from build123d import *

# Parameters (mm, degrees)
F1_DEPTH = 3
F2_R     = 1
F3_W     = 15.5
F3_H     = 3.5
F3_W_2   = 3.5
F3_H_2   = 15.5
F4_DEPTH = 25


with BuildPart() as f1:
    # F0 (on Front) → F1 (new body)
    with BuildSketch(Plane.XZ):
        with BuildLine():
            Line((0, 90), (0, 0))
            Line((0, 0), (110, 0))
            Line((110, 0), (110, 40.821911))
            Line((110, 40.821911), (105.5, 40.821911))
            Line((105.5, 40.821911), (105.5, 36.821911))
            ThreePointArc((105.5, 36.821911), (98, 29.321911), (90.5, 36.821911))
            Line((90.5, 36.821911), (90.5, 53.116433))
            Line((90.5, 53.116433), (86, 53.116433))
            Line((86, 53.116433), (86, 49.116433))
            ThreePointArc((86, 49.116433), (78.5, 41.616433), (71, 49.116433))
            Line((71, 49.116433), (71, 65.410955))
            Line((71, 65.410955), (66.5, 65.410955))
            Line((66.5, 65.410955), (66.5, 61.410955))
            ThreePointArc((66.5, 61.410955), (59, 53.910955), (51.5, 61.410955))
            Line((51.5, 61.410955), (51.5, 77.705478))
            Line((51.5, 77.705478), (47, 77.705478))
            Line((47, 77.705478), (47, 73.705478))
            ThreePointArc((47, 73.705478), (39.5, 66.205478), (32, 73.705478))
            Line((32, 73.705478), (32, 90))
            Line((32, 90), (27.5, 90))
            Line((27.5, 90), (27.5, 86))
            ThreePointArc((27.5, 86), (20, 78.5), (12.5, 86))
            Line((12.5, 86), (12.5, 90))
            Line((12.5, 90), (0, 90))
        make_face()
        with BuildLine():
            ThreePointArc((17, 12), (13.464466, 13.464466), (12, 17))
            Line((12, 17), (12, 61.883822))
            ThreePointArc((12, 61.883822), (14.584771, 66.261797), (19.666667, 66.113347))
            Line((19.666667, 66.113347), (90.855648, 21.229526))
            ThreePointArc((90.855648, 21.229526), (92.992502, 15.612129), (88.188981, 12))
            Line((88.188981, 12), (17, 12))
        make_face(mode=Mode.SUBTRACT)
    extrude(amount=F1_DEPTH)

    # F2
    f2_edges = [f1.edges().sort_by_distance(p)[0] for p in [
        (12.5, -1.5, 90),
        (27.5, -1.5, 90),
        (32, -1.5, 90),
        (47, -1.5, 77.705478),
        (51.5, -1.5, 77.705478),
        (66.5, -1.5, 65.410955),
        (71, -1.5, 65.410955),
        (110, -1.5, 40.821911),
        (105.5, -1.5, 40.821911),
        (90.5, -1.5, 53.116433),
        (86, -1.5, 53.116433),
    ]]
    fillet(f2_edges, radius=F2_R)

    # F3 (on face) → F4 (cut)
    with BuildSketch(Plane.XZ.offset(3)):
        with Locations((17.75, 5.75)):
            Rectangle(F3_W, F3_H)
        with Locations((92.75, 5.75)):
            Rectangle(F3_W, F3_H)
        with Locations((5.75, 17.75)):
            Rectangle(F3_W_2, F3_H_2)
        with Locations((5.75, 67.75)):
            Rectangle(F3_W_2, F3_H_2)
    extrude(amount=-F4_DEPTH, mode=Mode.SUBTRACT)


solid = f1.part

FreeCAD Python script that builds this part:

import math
import FreeCAD as App
import Part
import Sketcher
Q = App.Units.Quantity


def edges_at(feature, points):
    """Names of the edges that pass closest to the given points."""
    edges = feature.Shape.Edges
    near = lambda p: min(range(len(edges)), key=lambda i: edges[i].distToShape(Part.Vertex(*p))[0])
    return sorted({f"Edge{near(p) + 1}" for p in points})


def add_polygon(sketch, points):
    """Adds a closed chain of lines whose ends are joined by coincident constraints."""
    first, n = sketch.GeometryCount, len(points)
    for a, b in zip(points, points[1:] + points[:1]):
        sketch.addGeometry(Part.LineSegment(App.Vector(*a, 0), App.Vector(*b, 0)), False)
    for i in range(n):
        sketch.addConstraint(Sketcher.Constraint("Coincident", first + i, 2, first + (i + 1) % n, 1))

doc = App.newDocument("Part")
body = doc.addObject("PartDesign::Body", "Body")

sketch1 = doc.addObject("Sketcher::SketchObject", "Sketch")
body.addObject(sketch1)
sketch1.AttachmentSupport = (doc.XZ_Plane, [""])
sketch1.MapMode = "FlatFace"
sketch1.addGeometry([
    Part.LineSegment(App.Vector(0, 90, 0), App.Vector(0, 0, 0)),
    Part.LineSegment(App.Vector(0, 0, 0), App.Vector(110, 0, 0)),
    Part.LineSegment(App.Vector(110, 0, 0), App.Vector(110, 40.821911, 0)),
    Part.LineSegment(App.Vector(110, 40.821911, 0), App.Vector(105.5, 40.821911, 0)),
    Part.LineSegment(App.Vector(105.5, 40.821911, 0), App.Vector(105.5, 36.821911, 0)),
    Part.ArcOfCircle(Part.Circle(App.Vector(98, 36.821911, 0), App.Vector(0, 0, 1), 7.5), math.radians(180), math.radians(360)),
    Part.LineSegment(App.Vector(90.5, 36.821911, 0), App.Vector(90.5, 53.116433, 0)),
    Part.LineSegment(App.Vector(90.5, 53.116433, 0), App.Vector(86, 53.116433, 0)),
    Part.LineSegment(App.Vector(86, 53.116433, 0), App.Vector(86, 49.116433, 0)),
    Part.ArcOfCircle(Part.Circle(App.Vector(78.5, 49.116433, 0), App.Vector(0, 0, 1), 7.5), math.radians(180), math.radians(360)),
    Part.LineSegment(App.Vector(71, 49.116433, 0), App.Vector(71, 65.410955, 0)),
    Part.LineSegment(App.Vector(71, 65.410955, 0), App.Vector(66.5, 65.410955, 0)),
    Part.LineSegment(App.Vector(66.5, 65.410955, 0), App.Vector(66.5, 61.410955, 0)),
    Part.ArcOfCircle(Part.Circle(App.Vector(59, 61.410955, 0), App.Vector(0, 0, 1), 7.5), math.radians(180), math.radians(360)),
    Part.LineSegment(App.Vector(51.5, 61.410955, 0), App.Vector(51.5, 77.705478, 0)),
    Part.LineSegment(App.Vector(51.5, 77.705478, 0), App.Vector(47, 77.705478, 0)),
    Part.LineSegment(App.Vector(47, 77.705478, 0), App.Vector(47, 73.705478, 0)),
    Part.ArcOfCircle(Part.Circle(App.Vector(39.5, 73.705478, 0), App.Vector(0, 0, 1), 7.5), math.radians(180), math.radians(360)),
    Part.LineSegment(App.Vector(32, 73.705478, 0), App.Vector(32, 90, 0)),
    Part.LineSegment(App.Vector(32, 90, 0), App.Vector(27.5, 90, 0)),
    Part.LineSegment(App.Vector(27.5, 90, 0), App.Vector(27.5, 86, 0)),
    Part.ArcOfCircle(Part.Circle(App.Vector(20, 86, 0), App.Vector(0, 0, 1), 7.5), math.radians(180), math.radians(360)),
    Part.LineSegment(App.Vector(12.5, 86, 0), App.Vector(12.5, 90, 0)),
    Part.LineSegment(App.Vector(12.5, 90, 0), App.Vector(0, 90, 0)),
    Part.LineSegment(App.Vector(88.188981, 12, 0), App.Vector(17, 12, 0)),
    Part.ArcOfCircle(Part.Circle(App.Vector(17, 17, 0), App.Vector(0, 0, 1), 5), math.radians(179.999996), math.radians(270.000004)),
    Part.LineSegment(App.Vector(12, 17, 0), App.Vector(12, 61.883822, 0)),
    Part.ArcOfCircle(Part.Circle(App.Vector(17, 61.883822, 0), App.Vector(0, 0, 1), 5), math.radians(57.769039), math.radians(179.999996)),
    Part.LineSegment(App.Vector(19.666667, 66.113347, 0), App.Vector(90.855648, 21.229526, 0)),
    Part.ArcOfCircle(Part.Circle(App.Vector(88.188981, 17, 0), App.Vector(0, 0, 1), 5), math.radians(-89.999998), math.radians(57.769042)),
], False)
sketch1.addConstraint([
    Sketcher.Constraint("Coincident", 0, 2, 1, 1),
    Sketcher.Constraint("Coincident", 1, 2, 2, 1),
    Sketcher.Constraint("Coincident", 2, 2, 3, 1),
    Sketcher.Constraint("Coincident", 3, 2, 4, 1),
    Sketcher.Constraint("Tangent", 4, 2, 5, 2),
    Sketcher.Constraint("Tangent", 5, 1, 6, 1),
    Sketcher.Constraint("Coincident", 6, 2, 7, 1),
    Sketcher.Constraint("Coincident", 7, 2, 8, 1),
    Sketcher.Constraint("Tangent", 8, 2, 9, 2),
    Sketcher.Constraint("Tangent", 9, 1, 10, 1),
    Sketcher.Constraint("Coincident", 10, 2, 11, 1),
    Sketcher.Constraint("Coincident", 11, 2, 12, 1),
    Sketcher.Constraint("Tangent", 12, 2, 13, 2),
    Sketcher.Constraint("Tangent", 13, 1, 14, 1),
    Sketcher.Constraint("Coincident", 14, 2, 15, 1),
    Sketcher.Constraint("Coincident", 15, 2, 16, 1),
    Sketcher.Constraint("Tangent", 16, 2, 17, 2),
    Sketcher.Constraint("Tangent", 17, 1, 18, 1),
    Sketcher.Constraint("Coincident", 18, 2, 19, 1),
    Sketcher.Constraint("Coincident", 19, 2, 20, 1),
    Sketcher.Constraint("Tangent", 20, 2, 21, 2),
    Sketcher.Constraint("Tangent", 21, 1, 22, 1),
    Sketcher.Constraint("Coincident", 22, 2, 23, 1),
    Sketcher.Constraint("Coincident", 23, 2, 0, 1),
    Sketcher.Constraint("Tangent", 24, 2, 25, 2),
    Sketcher.Constraint("Tangent", 25, 1, 26, 1),
    Sketcher.Constraint("Tangent", 26, 2, 27, 2),
    Sketcher.Constraint("Tangent", 27, 1, 28, 1),
    Sketcher.Constraint("Tangent", 28, 2, 29, 2),
    Sketcher.Constraint("Tangent", 29, 1, 24, 1),
    Sketcher.Constraint("Vertical", 0),
    Sketcher.Constraint("Horizontal", 1),
    Sketcher.Constraint("Vertical", 2),
    Sketcher.Constraint("Horizontal", 3),
    Sketcher.Constraint("Vertical", 4),
    Sketcher.Constraint("Vertical", 6),
    Sketcher.Constraint("Horizontal", 7),
    Sketcher.Constraint("Vertical", 8),
    Sketcher.Constraint("Vertical", 10),
    Sketcher.Constraint("Horizontal", 11),
    Sketcher.Constraint("Vertical", 12),
    Sketcher.Constraint("Vertical", 14),
    Sketcher.Constraint("Horizontal", 15),
    Sketcher.Constraint("Vertical", 16),
    Sketcher.Constraint("Vertical", 18),
    Sketcher.Constraint("Horizontal", 19),
    Sketcher.Constraint("Vertical", 20),
    Sketcher.Constraint("Vertical", 22),
    Sketcher.Constraint("Horizontal", 23),
    Sketcher.Constraint("Horizontal", 24),
    Sketcher.Constraint("Vertical", 26),
    Sketcher.Constraint("Coincident", 0, 2, -1, 1),
    Sketcher.Constraint("Equal", 5, 9),
    Sketcher.Constraint("Equal", 9, 13),
    Sketcher.Constraint("Equal", 13, 17),
    Sketcher.Constraint("Equal", 17, 21),
    Sketcher.Constraint("Equal", 25, 27),
    Sketcher.Constraint("Equal", 27, 29),
    Sketcher.Constraint("Horizontal", 19, 2, 22, 2),
    Sketcher.Constraint("Equal", 3, 7),
    Sketcher.Constraint("Equal", 7, 11),
    Sketcher.Constraint("Equal", 11, 15),
    Sketcher.Constraint("Equal", 15, 19),
    Sketcher.Constraint("Equal", 4, 8),
    Sketcher.Constraint("Equal", 6, 10),
    Sketcher.Constraint("Equal", 8, 12),
    Sketcher.Constraint("Equal", 10, 14),
    Sketcher.Constraint("Equal", 12, 16),
    Sketcher.Constraint("Equal", 14, 18),
    Sketcher.Constraint("Equal", 16, 20),
    Sketcher.Constraint("Radius", 25, Q("5 mm")),
    Sketcher.Constraint("Radius", 5, Q("7.5 mm")),
    Sketcher.Constraint("DistanceX", 1, 1, 1, 2, Q("110 mm")),
    Sketcher.Constraint("DistanceY", 0, 2, 0, 1, Q("90 mm")),
    Sketcher.Constraint("DistanceY", 4, 2, 4, 1, Q("4 mm")),
    Sketcher.Constraint("DistanceX", 3, 2, 3, 1, Q("4.5 mm")),
    Sketcher.Constraint("DistanceX", -1, 1, 25, 3, Q("17 mm")),
    Sketcher.Constraint("DistanceY", -1, 1, 25, 3, Q("17 mm")),
    Sketcher.Constraint("DistanceX", 24, 2, 24, 1, Q("71.188981 mm")),
    Sketcher.Constraint("DistanceY", 2, 1, 2, 2, Q("40.821911 mm")),
    Sketcher.Constraint("DistanceY", 26, 1, 26, 2, Q("44.883822 mm")),
])
pad1 = doc.addObject("PartDesign::Pad", "Pad")
body.addObject(pad1)
pad1.Profile = sketch1
pad1.Length = 3
doc.recompute()

fillet = doc.addObject("PartDesign::Fillet", "Fillet")
body.addObject(fillet)
fillet.Base = (pad1, edges_at(pad1, [
    (12.5, -1.5, 90),
    (27.5, -1.5, 90),
    (32, -1.5, 90),
    (47, -1.5, 77.705),
    (51.5, -1.5, 77.705),
    (66.5, -1.5, 65.411),
    (71, -1.5, 65.411),
    (110, -1.5, 40.822),
    (105.5, -1.5, 40.822),
    (90.5, -1.5, 53.116),
    (86, -1.5, 53.116),
]))
fillet.Radius = 1

sketch2 = doc.addObject("Sketcher::SketchObject", "Sketch001")
body.addObject(sketch2)
sketch2.AttachmentSupport = (doc.XZ_Plane, [""])
sketch2.MapMode = "FlatFace"
sketch2.AttachmentOffset = App.Placement(App.Vector(0, 0, 3), App.Rotation())
add_polygon(sketch2, [(10, 7.5), (10, 4), (25.5, 4), (25.5, 7.5)])
add_polygon(sketch2, [(85, 7.5), (85, 4), (100.5, 4), (100.5, 7.5)])
add_polygon(sketch2, [(4, 25.5), (4, 10), (7.5, 10), (7.5, 25.5)])
add_polygon(sketch2, [(4, 75.5), (4, 60), (7.5, 60), (7.5, 75.5)])
sketch2.addConstraint([
    Sketcher.Constraint("Vertical", 0),
    Sketcher.Constraint("Horizontal", 1),
    Sketcher.Constraint("Vertical", 2),
    Sketcher.Constraint("Horizontal", 3),
    Sketcher.Constraint("Vertical", 4),
    Sketcher.Constraint("Horizontal", 5),
    Sketcher.Constraint("Vertical", 6),
    Sketcher.Constraint("Horizontal", 7),
    Sketcher.Constraint("Vertical", 8),
    Sketcher.Constraint("Horizontal", 9),
    Sketcher.Constraint("Vertical", 10),
    Sketcher.Constraint("Horizontal", 11),
    Sketcher.Constraint("Vertical", 12),
    Sketcher.Constraint("Horizontal", 13),
    Sketcher.Constraint("Vertical", 14),
    Sketcher.Constraint("Horizontal", 15),
    Sketcher.Constraint("Horizontal", 1, 2, 4, 2),
    Sketcher.Constraint("Horizontal", 3, 2, 6, 2),
    Sketcher.Constraint("Vertical", 11, 2, 12, 2),
    Sketcher.Constraint("Vertical", 10, 2, 13, 2),
    Sketcher.Constraint("Equal", 3, 5),
    Sketcher.Constraint("Equal", 15, 0),
    Sketcher.Constraint("Equal", 7, 8),
    Sketcher.Constraint("Equal", 10, 12),
    Sketcher.Constraint("DistanceX", 1, 1, 1, 2, Q("15.5 mm")),
    Sketcher.Constraint("DistanceX", 9, 1, 9, 2, Q("3.5 mm")),
    Sketcher.Constraint("DistanceX", -1, 1, 0, 2, Q("10 mm")),
    Sketcher.Constraint("DistanceY", -1, 1, 0, 2, Q("4 mm")),
    Sketcher.Constraint("DistanceX", -1, 1, 4, 2, Q("85 mm")),
    Sketcher.Constraint("DistanceX", -1, 1, 8, 2, Q("4 mm")),
    Sketcher.Constraint("DistanceY", -1, 1, 8, 2, Q("10 mm")),
    Sketcher.Constraint("DistanceY", -1, 1, 12, 2, Q("60 mm")),
])
pocket1 = doc.addObject("PartDesign::Pocket", "Pocket")
body.addObject(pocket1)
pocket1.Profile = sketch2
pocket1.Length = 25

doc.recompute()
